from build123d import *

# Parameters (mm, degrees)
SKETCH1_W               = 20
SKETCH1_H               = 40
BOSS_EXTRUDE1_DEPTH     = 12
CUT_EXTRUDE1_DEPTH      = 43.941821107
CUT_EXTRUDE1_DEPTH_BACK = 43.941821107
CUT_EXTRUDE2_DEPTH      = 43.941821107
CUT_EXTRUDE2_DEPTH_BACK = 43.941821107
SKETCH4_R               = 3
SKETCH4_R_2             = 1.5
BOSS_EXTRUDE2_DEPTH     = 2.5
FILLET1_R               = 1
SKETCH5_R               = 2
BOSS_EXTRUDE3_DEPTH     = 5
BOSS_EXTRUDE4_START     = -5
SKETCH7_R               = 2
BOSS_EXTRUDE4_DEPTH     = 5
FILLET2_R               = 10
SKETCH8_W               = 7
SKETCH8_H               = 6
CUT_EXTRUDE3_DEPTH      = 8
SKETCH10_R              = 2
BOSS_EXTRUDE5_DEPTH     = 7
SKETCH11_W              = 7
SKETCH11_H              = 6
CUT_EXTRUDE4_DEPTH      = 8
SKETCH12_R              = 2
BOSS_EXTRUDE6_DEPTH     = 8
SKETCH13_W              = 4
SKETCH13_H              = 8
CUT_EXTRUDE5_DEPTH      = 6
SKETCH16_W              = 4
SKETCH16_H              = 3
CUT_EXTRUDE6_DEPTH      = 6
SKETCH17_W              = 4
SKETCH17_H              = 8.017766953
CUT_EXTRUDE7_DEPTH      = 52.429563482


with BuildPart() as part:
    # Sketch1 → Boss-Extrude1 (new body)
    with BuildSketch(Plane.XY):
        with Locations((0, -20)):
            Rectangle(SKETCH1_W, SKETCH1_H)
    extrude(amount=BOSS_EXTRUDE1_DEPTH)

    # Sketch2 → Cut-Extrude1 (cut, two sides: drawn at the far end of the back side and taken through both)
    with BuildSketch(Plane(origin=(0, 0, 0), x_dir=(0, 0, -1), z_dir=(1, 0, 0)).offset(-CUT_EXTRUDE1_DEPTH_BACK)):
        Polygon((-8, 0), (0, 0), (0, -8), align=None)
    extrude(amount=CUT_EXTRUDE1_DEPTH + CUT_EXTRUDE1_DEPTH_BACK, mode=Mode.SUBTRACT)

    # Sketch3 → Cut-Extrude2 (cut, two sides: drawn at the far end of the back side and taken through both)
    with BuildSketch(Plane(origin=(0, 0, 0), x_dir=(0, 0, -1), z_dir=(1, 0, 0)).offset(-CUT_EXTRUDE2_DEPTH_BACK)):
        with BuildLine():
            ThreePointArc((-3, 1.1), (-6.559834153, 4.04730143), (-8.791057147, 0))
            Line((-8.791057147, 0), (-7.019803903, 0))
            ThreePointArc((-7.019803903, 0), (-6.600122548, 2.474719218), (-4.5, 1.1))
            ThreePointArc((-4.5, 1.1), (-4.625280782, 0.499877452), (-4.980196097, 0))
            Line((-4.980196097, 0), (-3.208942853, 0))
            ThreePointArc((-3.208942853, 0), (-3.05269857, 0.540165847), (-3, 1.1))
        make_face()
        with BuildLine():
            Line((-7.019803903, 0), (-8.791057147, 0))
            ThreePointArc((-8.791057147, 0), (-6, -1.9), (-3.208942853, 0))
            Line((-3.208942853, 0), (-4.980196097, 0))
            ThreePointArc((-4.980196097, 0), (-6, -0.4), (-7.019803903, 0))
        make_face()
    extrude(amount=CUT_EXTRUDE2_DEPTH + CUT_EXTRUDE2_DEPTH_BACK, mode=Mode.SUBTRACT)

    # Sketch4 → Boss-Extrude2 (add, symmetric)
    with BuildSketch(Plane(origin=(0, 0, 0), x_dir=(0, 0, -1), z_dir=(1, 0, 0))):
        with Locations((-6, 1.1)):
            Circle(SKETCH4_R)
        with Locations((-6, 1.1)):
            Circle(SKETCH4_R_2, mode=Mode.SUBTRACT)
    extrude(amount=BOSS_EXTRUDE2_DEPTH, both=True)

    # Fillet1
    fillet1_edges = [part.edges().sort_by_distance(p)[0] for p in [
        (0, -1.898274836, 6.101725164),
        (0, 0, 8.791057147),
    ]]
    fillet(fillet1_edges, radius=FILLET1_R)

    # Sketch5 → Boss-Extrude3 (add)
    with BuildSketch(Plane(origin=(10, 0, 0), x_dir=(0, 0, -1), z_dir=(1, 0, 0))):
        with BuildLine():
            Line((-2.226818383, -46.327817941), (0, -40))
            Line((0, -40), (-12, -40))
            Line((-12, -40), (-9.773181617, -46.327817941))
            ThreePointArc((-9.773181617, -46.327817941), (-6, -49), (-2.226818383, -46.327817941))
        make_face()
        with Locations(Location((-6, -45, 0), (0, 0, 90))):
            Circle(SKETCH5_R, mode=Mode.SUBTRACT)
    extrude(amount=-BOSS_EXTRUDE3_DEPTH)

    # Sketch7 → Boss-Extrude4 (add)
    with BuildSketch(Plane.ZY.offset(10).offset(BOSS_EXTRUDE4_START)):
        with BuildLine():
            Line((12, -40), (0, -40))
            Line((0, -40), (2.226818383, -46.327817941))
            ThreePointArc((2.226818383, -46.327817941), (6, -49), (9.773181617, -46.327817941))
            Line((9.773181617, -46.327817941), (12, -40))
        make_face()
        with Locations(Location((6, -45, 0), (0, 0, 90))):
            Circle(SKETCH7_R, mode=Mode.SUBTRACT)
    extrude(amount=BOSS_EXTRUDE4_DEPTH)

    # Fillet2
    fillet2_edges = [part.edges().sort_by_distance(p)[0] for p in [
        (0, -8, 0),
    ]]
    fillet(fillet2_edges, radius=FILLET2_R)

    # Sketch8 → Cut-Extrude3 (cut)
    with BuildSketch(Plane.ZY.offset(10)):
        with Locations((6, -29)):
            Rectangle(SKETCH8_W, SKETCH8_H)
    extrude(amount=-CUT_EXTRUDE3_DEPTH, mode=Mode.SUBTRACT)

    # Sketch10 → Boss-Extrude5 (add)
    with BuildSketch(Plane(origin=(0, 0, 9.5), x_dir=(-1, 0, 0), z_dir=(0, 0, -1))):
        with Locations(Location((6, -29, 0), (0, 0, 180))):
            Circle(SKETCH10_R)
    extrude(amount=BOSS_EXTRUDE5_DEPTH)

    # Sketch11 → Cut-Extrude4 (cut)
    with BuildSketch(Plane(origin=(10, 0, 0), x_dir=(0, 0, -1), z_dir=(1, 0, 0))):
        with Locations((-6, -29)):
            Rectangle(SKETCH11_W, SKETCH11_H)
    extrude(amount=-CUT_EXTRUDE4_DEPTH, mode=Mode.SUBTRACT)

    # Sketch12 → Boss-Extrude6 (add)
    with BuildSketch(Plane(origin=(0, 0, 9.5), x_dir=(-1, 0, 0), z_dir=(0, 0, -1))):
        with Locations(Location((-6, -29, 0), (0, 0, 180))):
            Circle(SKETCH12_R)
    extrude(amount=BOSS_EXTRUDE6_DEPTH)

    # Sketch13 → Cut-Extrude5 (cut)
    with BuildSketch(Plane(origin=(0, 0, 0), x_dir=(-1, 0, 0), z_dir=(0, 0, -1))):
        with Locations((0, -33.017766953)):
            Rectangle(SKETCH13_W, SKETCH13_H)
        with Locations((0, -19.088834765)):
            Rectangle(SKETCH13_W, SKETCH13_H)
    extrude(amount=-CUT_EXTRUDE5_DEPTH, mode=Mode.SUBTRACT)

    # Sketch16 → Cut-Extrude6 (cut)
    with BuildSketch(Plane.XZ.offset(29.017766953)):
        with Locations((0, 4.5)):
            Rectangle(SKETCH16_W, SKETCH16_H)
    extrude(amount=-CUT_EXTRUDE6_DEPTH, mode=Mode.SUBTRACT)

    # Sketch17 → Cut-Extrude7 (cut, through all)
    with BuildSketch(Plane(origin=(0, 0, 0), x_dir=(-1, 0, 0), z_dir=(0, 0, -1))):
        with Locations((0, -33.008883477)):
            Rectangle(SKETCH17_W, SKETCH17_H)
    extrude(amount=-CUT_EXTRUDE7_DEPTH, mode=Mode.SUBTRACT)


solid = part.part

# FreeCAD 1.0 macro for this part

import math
import FreeCAD as App
import Part
import Sketcher
from FreeCAD import Vector


def edges_at(feature, points):
    """Names of the edges that pass closest to the given points."""
    edges = feature.Shape.Edges
    near = lambda p: min(range(len(edges)), key=lambda i: edges[i].distToShape(Part.Vertex(*p))[0])
    return sorted({f"Edge{near(p) + 1}" for p in points})

doc = App.newDocument("Part")
body = doc.addObject("PartDesign::Body", "Body")

sketch1 = body.newObject("Sketcher::SketchObject", "Sketch")
sketch1.AttachmentSupport = (doc.getObject("XY_Plane"), [""])
sketch1.MapMode = "FlatFace"
sketch1.addGeometry([
    Part.LineSegment(Vector(-10, 0, 0), Vector(-10, -40, 0)),
    Part.LineSegment(Vector(-10, -40, 0), Vector(10, -40, 0)),
    Part.LineSegment(Vector(10, -40, 0), Vector(10, 0, 0)),
    Part.LineSegment(Vector(10, 0, 0), Vector(-10, 0, 0)),
], False)
sketch1.addConstraint([
    Sketcher.Constraint("Coincident", 0, 2, 1, 1),
    Sketcher.Constraint("Coincident", 1, 2, 2, 1),
    Sketcher.Constraint("Coincident", 2, 2, 3, 1),
    Sketcher.Constraint("Coincident", 3, 2, 0, 1),
    Sketcher.Constraint("Vertical", 0),
    Sketcher.Constraint("Horizontal", 1),
    Sketcher.Constraint("Vertical", 2),
    Sketcher.Constraint("Horizontal", 3),
    Sketcher.Constraint("Symmetric", 2, 2, 3, 2, -1, 1),
    Sketcher.Constraint("DistanceX", 1, 1, 1, 2, 20.0),
    Sketcher.Constraint("DistanceY", 0, 2, 0, 1, 40.0),
])
pad1 = body.newObject("PartDesign::Pad", "Pad")
pad1.Profile = sketch1
pad1.Length = 12

sketch2 = body.newObject("Sketcher::SketchObject", "Sketch001")
sketch2.AttachmentSupport = (doc.getObject("YZ_Plane"), [""])
sketch2.MapMode = "FlatFace"
sketch2.addGeometry([
    Part.LineSegment(Vector(0, 0, 0), Vector(0, 8, 0)),
    Part.LineSegment(Vector(0, 8, 0), Vector(-8, 0, 0)),
    Part.LineSegment(Vector(-8, 0, 0), Vector(0, 0, 0)),
], False)
sketch2.addConstraint([
    Sketcher.Constraint("Coincident", 0, 2, 1, 1),
    Sketcher.Constraint("Coincident", 1, 2, 2, 1),
    Sketcher.Constraint("Coincident", 2, 2, 0, 1),
    Sketcher.Constraint("Vertical", 0),
    Sketcher.Constraint("Horizontal", 2),
    Sketcher.Constraint("Coincident", 2, 2, -1, 1),
    Sketcher.Constraint("Equal", 2, 0),
    Sketcher.Constraint("DistanceX", 2, 1, 2, 2, 8.0),
])
pocket1 = body.newObject("PartDesign::Pocket", "Pocket")
pocket1.Profile = sketch2
pocket1.Type = "ThroughAll"
pocket1.Midplane = True

sketch3 = body.newObject("Sketcher::SketchObject", "Sketch002")
sketch3.AttachmentSupport = (doc.getObject("YZ_Plane"), [""])
sketch3.MapMode = "FlatFace"
sketch3.addGeometry([
    Part.ArcOfCircle(Part.Circle(Vector(1.1, 6, 0), Vector(0, 0, 1), 3), math.radians(-90), math.radians(111.510188)),
    Part.ArcOfCircle(Part.Circle(Vector(1.1, 6, 0), Vector(0, 0, 1), 3), math.radians(111.510188), math.radians(248.489812)),
    Part.ArcOfCircle(Part.Circle(Vector(1.1, 6, 0), Vector(0, 0, 1), 3), math.radians(-111.510188), math.radians(-90)),
    Part.ArcOfCircle(Part.Circle(Vector(1.1, 6, 0), Vector(0, 0, 1), 1.5), math.radians(-137.166572), math.radians(-90)),
    Part.ArcOfCircle(Part.Circle(Vector(1.1, 6, 0), Vector(0, 0, 1), 1.5), math.radians(137.166572), math.radians(222.833428)),
    Part.ArcOfCircle(Part.Circle(Vector(1.1, 6, 0), Vector(0, 0, 1), 1.5), math.radians(-90), math.radians(137.166572)),
], False)
sketch3.addConstraint([
    Sketcher.Constraint("Tangent", 0, 2, 1, 1),
    Sketcher.Constraint("Tangent", 1, 2, 2, 1),
    Sketcher.Constraint("Tangent", 2, 2, 0, 1),
    Sketcher.Constraint("Tangent", 3, 1, 4, 2),
    Sketcher.Constraint("Tangent", 4, 1, 5, 2),
    Sketcher.Constraint("Tangent", 5, 1, 3, 2),
    Sketcher.Constraint("Coincident", 3, 3, 0, 3),
    Sketcher.Constraint("PointOnObject", 0, 2, -2),
    Sketcher.Constraint("PointOnObject", 1, 2, -2),
    Sketcher.Constraint("PointOnObject", 3, 1, -2),
    Sketcher.Constraint("PointOnObject", 4, 1, -2),
    Sketcher.Constraint("Vertical", 5, 3, 2, 2),
    Sketcher.Constraint("Vertical", 2, 2, 5, 1),
    Sketcher.Constraint("Radius", 0, 3.0),
    Sketcher.Constraint("Radius", 3, 1.5),
    Sketcher.Constraint("DistanceY", -1, 1, 0, 3, 6.0),
    Sketcher.Constraint("DistanceX", -1, 1, 0, 3, 1.1),
])
pocket2 = body.newObject("PartDesign::Pocket", "Pocket001")
pocket2.Profile = sketch3
pocket2.Type = "ThroughAll"
pocket2.Midplane = True

sketch4 = body.newObject("Sketcher::SketchObject", "Sketch003")
sketch4.AttachmentSupport = (doc.getObject("YZ_Plane"), [""])
sketch4.MapMode = "FlatFace"
sketch4.addGeometry([
    Part.Circle(Vector(1.1, 6, 0), Vector(0, 0, 1), 3),
    Part.Circle(Vector(1.1, 6, 0), Vector(0, 0, 1), 1.5),
], False)
sketch4.addConstraint([
    Sketcher.Constraint("Coincident", 1, 3, 0, 3),
    Sketcher.Constraint("Diameter", 0, 6.0),
    Sketcher.Constraint("Diameter", 1, 3.0),
    Sketcher.Constraint("DistanceY", -1, 1, 0, 3, 6.0),
    Sketcher.Constraint("DistanceX", -1, 1, 0, 3, 1.1),
])
pad2 = body.newObject("PartDesign::Pad", "Pad001")
pad2.Profile = sketch4
pad2.Length = 5
pad2.Midplane = True
doc.recompute()

fillet = body.newObject("PartDesign::Fillet", "Fillet")
fillet.Base = (pad2, edges_at(pad2, [(0, -1.898, 6.102), (0, 0, 8.791)]))
fillet.Radius = 1

sketch5 = body.newObject("Sketcher::SketchObject", "Sketch004")
sketch5.AttachmentSupport = (doc.getObject("YZ_Plane"), [""])
sketch5.MapMode = "FlatFace"
sketch5.AttachmentOffset = App.Placement(Vector(0, 0, 10), App.Rotation())
sketch5.addGeometry([
    Part.LineSegment(Vector(-46.327818, 2.226818, 0), Vector(-40, 0, 0)),
    Part.LineSegment(Vector(-40, 0, 0), Vector(-40, 12, 0)),
    Part.LineSegment(Vector(-40, 12, 0), Vector(-46.327818, 9.773182, 0)),
    Part.ArcOfCircle(Part.Circle(Vector(-45, 6, 0), Vector(0, 0, 1), 4), math.radians(109.387448), math.radians(250.612552)),
    Part.Circle(Vector(-45, 6, 0), Vector(0, 0, 1), 2),
], False)
sketch5.addConstraint([
    Sketcher.Constraint("Coincident", 0, 2, 1, 1),
    Sketcher.Constraint("Coincident", 1, 2, 2, 1),
    Sketcher.Constraint("Tangent", 2, 2, 3, 1),
    Sketcher.Constraint("Tangent", 3, 2, 0, 1),
    Sketcher.Constraint("Vertical", 1),
    Sketcher.Constraint("Coincident", 4, 3, 3, 3),
    Sketcher.Constraint("PointOnObject", 0, 2, -1),
    Sketcher.Constraint("Vertical", 2, 2, 3, 2),
    Sketcher.Constraint("Diameter", 4, 4.0),
    Sketcher.Constraint("Radius", 3, 4.0),
    Sketcher.Constraint("DistanceY", 1, 1, 1, 2, 12.0),
    Sketcher.Constraint("DistanceX", 3, 3, -1, 1, 45.0),
    Sketcher.Constraint("DistanceX", 0, 2, -1, 1, 40.0),
])
pad3 = body.newObject("PartDesign::Pad", "Pad002")
pad3.Profile = sketch5
pad3.Length = 5
pad3.Reversed = True

sketch6 = body.newObject("Sketcher::SketchObject", "Sketch005")
sketch6.AttachmentSupport = (doc.getObject("YZ_Plane"), [""])
sketch6.MapMode = "FlatFace"
sketch6.AttachmentOffset = App.Placement(Vector(0, 0, -5), App.Rotation())
sketch6.addGeometry([
    Part.LineSegment(Vector(-40, 12, 0), Vector(-40, 0, 0)),
    Part.LineSegment(Vector(-40, 0, 0), Vector(-46.327818, 2.226818, 0)),
    Part.ArcOfCircle(Part.Circle(Vector(-45, 6, 0), Vector(0, 0, 1), 4), math.radians(109.387448), math.radians(250.612552)),
    Part.LineSegment(Vector(-46.327818, 9.773182, 0), Vector(-40, 12, 0)),
    Part.Circle(Vector(-45, 6, 0), Vector(0, 0, 1), 2),
], False)
sketch6.addConstraint([
    Sketcher.Constraint("Coincident", 0, 2, 1, 1),
    Sketcher.Constraint("Tangent", 1, 2, 2, 2),
    Sketcher.Constraint("Tangent", 2, 1, 3, 1),
    Sketcher.Constraint("Coincident", 3, 2, 0, 1),
    Sketcher.Constraint("Vertical", 0),
    Sketcher.Constraint("Coincident", 4, 3, 2, 3),
    Sketcher.Constraint("PointOnObject", 0, 2, -1),
    Sketcher.Constraint("Vertical", 1, 2, 2, 1),
    Sketcher.Constraint("Diameter", 4, 4.0),
    Sketcher.Constraint("Radius", 2, 4.0),
    Sketcher.Constraint("DistanceY", 0, 2, 0, 1, 12.0),
    Sketcher.Constraint("DistanceX", 2, 3, -1, 1, 45.0),
    Sketcher.Constraint("DistanceX", 0, 2, -1, 1, 40.0),
])
pad4 = body.newObject("PartDesign::Pad", "Pad003")
pad4.Profile = sketch6
pad4.Length = 5
pad4.Reversed = True
doc.recompute()

fillet2 = body.newObject("PartDesign::Fillet", "Fillet001")
fillet2.Base = (pad4, edges_at(pad4, [(0, -8, 0)]))
fillet2.Radius = 10

sketch7 = body.newObject("Sketcher::SketchObject", "Sketch006")
sketch7.AttachmentSupport = (doc.getObject("YZ_Plane"), [""])
sketch7.MapMode = "FlatFace"
sketch7.AttachmentOffset = App.Placement(Vector(0, 0, -10), App.Rotation())
sketch7.addGeometry([
    Part.LineSegment(Vector(-26, 2.5, 0), Vector(-32, 2.5, 0)),
    Part.LineSegment(Vector(-32, 2.5, 0), Vector(-32, 9.5, 0)),
    Part.LineSegment(Vector(-32, 9.5, 0), Vector(-26, 9.5, 0)),
    Part.LineSegment(Vector(-26, 9.5, 0), Vector(-26, 2.5, 0)),
], False)
sketch7.addConstraint([
    Sketcher.Constraint("Coincident", 0, 2, 1, 1),
    Sketcher.Constraint("Coincident", 1, 2, 2, 1),
    Sketcher.Constraint("Coincident", 2, 2, 3, 1),
    Sketcher.Constraint("Coincident", 3, 2, 0, 1),
    Sketcher.Constraint("Horizontal", 0),
    Sketcher.Constraint("Vertical", 1),
    Sketcher.Constraint("Horizontal", 2),
    Sketcher.Constraint("Vertical", 3),
    Sketcher.Constraint("DistanceX", 0, 2, 0, 1, 6.0),
    Sketcher.Constraint("DistanceY", 1, 1, 1, 2, 7.0),
    Sketcher.Constraint("DistanceX", 0, 2, -1, 1, 32.0),
    Sketcher.Constraint("DistanceY", -1, 1, 0, 2, 2.5),
])
pocket3 = body.newObject("PartDesign::Pocket", "Pocket002")
pocket3.Profile = sketch7
pocket3.Length = 8
pocket3.Reversed = True

sketch8 = body.newObject("Sketcher::SketchObject", "Sketch007")
sketch8.AttachmentSupport = (doc.getObject("XY_Plane"), [""])
sketch8.MapMode = "FlatFace"
sketch8.AttachmentOffset = App.Placement(Vector(0, 0, 9.5), App.Rotation())
sketch8.addGeometry(Part.Circle(Vector(-6, -29, 0), Vector(0, 0, 1), 2), False)
sketch8.addConstraint([
    Sketcher.Constraint("Diameter", 0, 4.0),
    Sketcher.Constraint("DistanceX", 0, 3, -1, 1, 6.0),
    Sketcher.Constraint("DistanceY", 0, 3, -1, 1, 29.0),
])
pad5 = body.newObject("PartDesign::Pad", "Pad004")
pad5.Profile = sketch8
pad5.Length = 7
pad5.Reversed = True

sketch9 = body.newObject("Sketcher::SketchObject", "Sketch008")
sketch9.AttachmentSupport = (doc.getObject("YZ_Plane"), [""])
sketch9.MapMode = "FlatFace"
sketch9.AttachmentOffset = App.Placement(Vector(0, 0, 10), App.Rotation())
sketch9.addGeometry([
    Part.LineSegment(Vector(-26, 9.5, 0), Vector(-32, 9.5, 0)),
    Part.LineSegment(Vector(-32, 9.5, 0), Vector(-32, 2.5, 0)),
    Part.LineSegment(Vector(-32, 2.5, 0), Vector(-26, 2.5, 0)),
    Part.LineSegment(Vector(-26, 2.5, 0), Vector(-26, 9.5, 0)),
], False)
sketch9.addConstraint([
    Sketcher.Constraint("Coincident", 0, 2, 1, 1),
    Sketcher.Constraint("Coincident", 1, 2, 2, 1),
    Sketcher.Constraint("Coincident", 2, 2, 3, 1),
    Sketcher.Constraint("Coincident", 3, 2, 0, 1),
    Sketcher.Constraint("Horizontal", 0),
    Sketcher.Constraint("Vertical", 1),
    Sketcher.Constraint("Horizontal", 2),
    Sketcher.Constraint("Vertical", 3),
    Sketcher.Constraint("DistanceX", 0, 2, 0, 1, 6.0),
    Sketcher.Constraint("DistanceY", 1, 2, 1, 1, 7.0),
    Sketcher.Constraint("DistanceX", 0, 2, -1, 1, 32.0),
    Sketcher.Constraint("DistanceY", -1, 1, 0, 2, 9.5),
])
pocket4 = body.newObject("PartDesign::Pocket", "Pocket003")
pocket4.Profile = sketch9
pocket4.Length = 8

sketch10 = body.newObject("Sketcher::SketchObject", "Sketch009")
sketch10.AttachmentSupport = (doc.getObject("XY_Plane"), [""])
sketch10.MapMode = "FlatFace"
sketch10.AttachmentOffset = App.Placement(Vector(0, 0, 9.5), App.Rotation())
sketch10.addGeometry(Part.Circle(Vector(6, -29, 0), Vector(0, 0, 1), 2), False)
sketch10.addConstraint([
    Sketcher.Constraint("Diameter", 0, 4.0),
    Sketcher.Constraint("DistanceX", -1, 1, 0, 3, 6.0),
    Sketcher.Constraint("DistanceY", 0, 3, -1, 1, 29.0),
])
pad6 = body.newObject("PartDesign::Pad", "Pad005")
pad6.Profile = sketch10
pad6.Length = 8
pad6.Reversed = True

sketch11 = body.newObject("Sketcher::SketchObject", "Sketch010")
sketch11.AttachmentSupport = (doc.getObject("XY_Plane"), [""])
sketch11.MapMode = "FlatFace"
sketch11.addGeometry([
    Part.LineSegment(Vector(2, -29.017767, 0), Vector(2, -37.017767, 0)),
    Part.LineSegment(Vector(2, -37.017767, 0), Vector(-2, -37.017767, 0)),
    Part.LineSegment(Vector(-2, -37.017767, 0), Vector(-2, -29.017767, 0)),
    Part.LineSegment(Vector(-2, -29.017767, 0), Vector(2, -29.017767, 0)),
    Part.LineSegment(Vector(2, -15.088835, 0), Vector(2, -23.088835, 0)),
    Part.LineSegment(Vector(2, -23.088835, 0), Vector(-2, -23.088835, 0)),
    Part.LineSegment(Vector(-2, -23.088835, 0), Vector(-2, -15.088835, 0)),
    Part.LineSegment(Vector(-2, -15.088835, 0), Vector(2, -15.088835, 0)),
], False)
sketch11.addConstraint([
    Sketcher.Constraint("Coincident", 0, 2, 1, 1),
    Sketcher.Constraint("Coincident", 1, 2, 2, 1),
    Sketcher.Constraint("Coincident", 2, 2, 3, 1),
    Sketcher.Constraint("Coincident", 3, 2, 0, 1),
    Sketcher.Constraint("Coincident", 4, 2, 5, 1),
    Sketcher.Constraint("Coincident", 5, 2, 6, 1),
    Sketcher.Constraint("Coincident", 6, 2, 7, 1),
    Sketcher.Constraint("Coincident", 7, 2, 4, 1),
    Sketcher.Constraint("Vertical", 0),
    Sketcher.Constraint("Horizontal", 1),
    Sketcher.Constraint("Vertical", 2),
    Sketcher.Constraint("Horizontal", 3),
    Sketcher.Constraint("Vertical", 4),
    Sketcher.Constraint("Horizontal", 5),
    Sketcher.Constraint("Vertical", 6),
    Sketcher.Constraint("Horizontal", 7),
    Sketcher.Constraint("Vertical", 3, 2, 4, 2),
    Sketcher.Constraint("Vertical", 2, 2, 5, 2),
    Sketcher.Constraint("Equal", 2, 4),
    Sketcher.Constraint("DistanceX", 1, 2, 1, 1, 4.0),
    Sketcher.Constraint("DistanceY", 0, 2, 0, 1, 8.0),
    Sketcher.Constraint("DistanceX", -1, 1, 0, 2, 2.0),
    Sketcher.Constraint("DistanceY", 0, 2, -1, 1, 37.017767),
    Sketcher.Constraint("DistanceY", 4, 2, -1, 1, 23.088835),
])
pocket5 = body.newObject("PartDesign::Pocket", "Pocket004")
pocket5.Profile = sketch11
pocket5.Length = 6
pocket5.Reversed = True

sketch12 = body.newObject("Sketcher::SketchObject", "Sketch011")
sketch12.AttachmentSupport = (doc.getObject("XZ_Plane"), [""])
sketch12.MapMode = "FlatFace"
sketch12.AttachmentOffset = App.Placement(Vector(0, 0, 29.017767), App.Rotation())
sketch12.addGeometry([
    Part.LineSegment(Vector(-2, 6, 0), Vector(-2, 3, 0)),
    Part.LineSegment(Vector(-2, 3, 0), Vector(2, 3, 0)),
    Part.LineSegment(Vector(2, 3, 0), Vector(2, 6, 0)),
    Part.LineSegment(Vector(2, 6, 0), Vector(-2, 6, 0)),
], False)
sketch12.addConstraint([
    Sketcher.Constraint("Coincident", 0, 2, 1, 1),
    Sketcher.Constraint("Coincident", 1, 2, 2, 1),
    Sketcher.Constraint("Coincident", 2, 2, 3, 1),
    Sketcher.Constraint("Coincident", 3, 2, 0, 1),
    Sketcher.Constraint("Vertical", 0),
    Sketcher.Constraint("Horizontal", 1),
    Sketcher.Constraint("Vertical", 2),
    Sketcher.Constraint("Horizontal", 3),
    Sketcher.Constraint("DistanceX", 1, 1, 1, 2, 4.0),
    Sketcher.Constraint("DistanceY", 0, 2, 0, 1, 3.0),
    Sketcher.Constraint("DistanceX", 0, 2, -1, 1, 2.0),
    Sketcher.Constraint("DistanceY", -1, 1, 0, 2, 3.0),
])
pocket6 = body.newObject("PartDesign::Pocket", "Pocket005")
pocket6.Profile = sketch12
pocket6.Length = 6

sketch13 = body.newObject("Sketcher::SketchObject", "Sketch012")
sketch13.AttachmentSupport = (doc.getObject("XY_Plane"), [""])
sketch13.MapMode = "FlatFace"
sketch13.addGeometry([
    Part.LineSegment(Vector(2, -29, 0), Vector(2, -37.017767, 0)),
    Part.LineSegment(Vector(2, -37.017767, 0), Vector(-2, -37.017767, 0)),
    Part.LineSegment(Vector(-2, -37.017767, 0), Vector(-2, -29, 0)),
    Part.LineSegment(Vector(-2, -29, 0), Vector(2, -29, 0)),
], False)
sketch13.addConstraint([
    Sketcher.Constraint("Coincident", 0, 2, 1, 1),
    Sketcher.Constraint("Coincident", 1, 2, 2, 1),
    Sketcher.Constraint("Coincident", 2, 2, 3, 1),
    Sketcher.Constraint("Coincident", 3, 2, 0, 1),
    Sketcher.Constraint("Vertical", 0),
    Sketcher.Constraint("Horizontal", 1),
    Sketcher.Constraint("Vertical", 2),
    Sketcher.Constraint("Horizontal", 3),
    Sketcher.Constraint("DistanceX", 1, 2, 1, 1, 4.0),
    Sketcher.Constraint("DistanceX", -1, 1, 0, 2, 2.0),
    Sketcher.Constraint("DistanceY", 2, 2, -1, 1, 29.0),
    Sketcher.Constraint("DistanceY", 0, 2, 0, 1, 8.017767),
])
pocket7 = body.newObject("PartDesign::Pocket", "Pocket006")
pocket7.Profile = sketch13
pocket7.Type = "ThroughAll"
pocket7.Reversed = True

doc.recompute()
